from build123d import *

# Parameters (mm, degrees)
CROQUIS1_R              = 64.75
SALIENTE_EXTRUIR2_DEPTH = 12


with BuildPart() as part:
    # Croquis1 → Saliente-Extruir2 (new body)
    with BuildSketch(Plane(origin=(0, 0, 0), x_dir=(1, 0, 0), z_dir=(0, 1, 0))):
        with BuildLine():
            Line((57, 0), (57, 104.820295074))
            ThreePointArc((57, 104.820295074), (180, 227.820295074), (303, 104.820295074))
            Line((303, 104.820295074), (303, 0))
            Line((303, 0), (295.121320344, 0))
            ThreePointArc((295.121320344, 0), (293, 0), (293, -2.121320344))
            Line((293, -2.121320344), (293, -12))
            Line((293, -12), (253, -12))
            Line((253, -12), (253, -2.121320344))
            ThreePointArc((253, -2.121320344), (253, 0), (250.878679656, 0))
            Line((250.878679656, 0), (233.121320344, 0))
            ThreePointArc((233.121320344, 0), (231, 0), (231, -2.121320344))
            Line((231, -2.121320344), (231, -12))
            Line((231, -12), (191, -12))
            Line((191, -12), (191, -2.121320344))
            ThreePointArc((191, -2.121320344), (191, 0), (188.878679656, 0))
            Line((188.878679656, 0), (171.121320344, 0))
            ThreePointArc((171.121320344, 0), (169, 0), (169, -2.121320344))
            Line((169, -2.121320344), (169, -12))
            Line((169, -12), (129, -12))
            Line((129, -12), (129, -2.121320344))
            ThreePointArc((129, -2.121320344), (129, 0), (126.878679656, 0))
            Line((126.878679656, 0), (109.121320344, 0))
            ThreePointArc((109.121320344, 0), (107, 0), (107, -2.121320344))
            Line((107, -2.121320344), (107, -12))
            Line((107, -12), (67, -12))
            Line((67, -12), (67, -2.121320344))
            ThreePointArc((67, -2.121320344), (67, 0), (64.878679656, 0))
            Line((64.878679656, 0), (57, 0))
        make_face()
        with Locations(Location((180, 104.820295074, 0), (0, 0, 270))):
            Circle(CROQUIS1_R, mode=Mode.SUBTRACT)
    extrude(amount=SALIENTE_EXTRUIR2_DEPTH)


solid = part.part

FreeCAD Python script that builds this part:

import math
import FreeCAD as App
import Part
import Sketcher
from FreeCAD import Vector

doc = App.newDocument("Part")
body = doc.addObject("PartDesign::Body", "Body")

sketch1 = body.newObject("Sketcher::SketchObject", "Sketch")
sketch1.AttachmentSupport = (doc.getObject("XZ_Plane"), [""])
sketch1.MapMode = "FlatFace"
sketch1.addGeometry(Part.LineSegment(Vector(57, -104.820295, 0), Vector(57, 0, 0)), False)
sketch1.addGeometry(Part.LineSegment(Vector(57, 0, 0), Vector(64.87868, 0, 0)), False)
sketch1.addGeometry(Part.ArcOfCircle(Part.Circle(Vector(65.93934, 1.06066, 0), Vector(0, 0, 1), 1.5), math.radians(-135), math.radians(45)), False)
sketch1.addGeometry(Part.LineSegment(Vector(67, 2.12132, 0), Vector(67, 12, 0)), False)
sketch1.addGeometry(Part.LineSegment(Vector(67, 12, 0), Vector(107, 12, 0)), False)
sketch1.addGeometry(Part.LineSegment(Vector(107, 12, 0), Vector(107, 2.12132, 0)), False)
sketch1.addGeometry(Part.ArcOfCircle(Part.Circle(Vector(108.06066, 1.06066, 0), Vector(0, 0, 1), 1.5), math.radians(135), math.radians(315)), False)
sketch1.addGeometry(Part.LineSegment(Vector(109.12132, 0, 0), Vector(126.87868, 0, 0)), False)
sketch1.addGeometry(Part.ArcOfCircle(Part.Circle(Vector(127.93934, 1.06066, 0), Vector(0, 0, 1), 1.5), math.radians(-135), math.radians(45)), False)
sketch1.addGeometry(Part.LineSegment(Vector(129, 2.12132, 0), Vector(129, 12, 0)), False)
sketch1.addGeometry(Part.LineSegment(Vector(129, 12, 0), Vector(169, 12, 0)), False)
sketch1.addGeometry(Part.LineSegment(Vector(169, 12, 0), Vector(169, 2.12132, 0)), False)
sketch1.addGeometry(Part.ArcOfCircle(Part.Circle(Vector(170.06066, 1.06066, 0), Vector(0, 0, 1), 1.5), math.radians(135), math.radians(315)), False)
sketch1.addGeometry(Part.LineSegment(Vector(171.12132, 0, 0), Vector(188.87868, 0, 0)), False)
sketch1.addGeometry(Part.ArcOfCircle(Part.Circle(Vector(189.93934, 1.06066, 0), Vector(0, 0, 1), 1.5), math.radians(-135), math.radians(45)), False)
sketch1.addGeometry(Part.LineSegment(Vector(191, 2.12132, 0), Vector(191, 12, 0)), False)
sketch1.addGeometry(Part.LineSegment(Vector(191, 12, 0), Vector(231, 12, 0)), False)
sketch1.addGeometry(Part.LineSegment(Vector(231, 12, 0), Vector(231, 2.12132, 0)), False)
sketch1.addGeometry(Part.ArcOfCircle(Part.Circle(Vector(232.06066, 1.06066, 0), Vector(0, 0, 1), 1.5), math.radians(135), math.radians(315)), False)
sketch1.addGeometry(Part.LineSegment(Vector(233.12132, 0, 0), Vector(250.87868, 0, 0)), False)
sketch1.addGeometry(Part.ArcOfCircle(Part.Circle(Vector(251.93934, 1.06066, 0), Vector(0, 0, 1), 1.5), math.radians(-135), math.radians(45)), False)
sketch1.addGeometry(Part.LineSegment(Vector(253, 2.12132, 0), Vector(253, 12, 0)), False)
sketch1.addGeometry(Part.LineSegment(Vector(253, 12, 0), Vector(293, 12, 0)), False)
sketch1.addGeometry(Part.LineSegment(Vector(293, 12, 0), Vector(293, 2.12132, 0)), False)
sketch1.addGeometry(Part.ArcOfCircle(Part.Circle(Vector(294.06066, 1.06066, 0), Vector(0, 0, 1), 1.5), math.radians(135), math.radians(315)), False)
sketch1.addGeometry(Part.LineSegment(Vector(295.12132, 0, 0), Vector(303, 0, 0)), False)
sketch1.addGeometry(Part.LineSegment(Vector(303, 0, 0), Vector(303, -104.820295, 0)), False)
sketch1.addGeometry(Part.ArcOfCircle(Part.Circle(Vector(180, -104.820295, 0), Vector(0, 0, 1), 123), math.radians(180), math.radians(360)), False)
sketch1.addGeometry(Part.Circle(Vector(180, -104.820295, 0), Vector(0, 0, 1), 64.75), False)
sketch1.addConstraint(Sketcher.Constraint("Coincident", 0, 2, 1, 1))
sketch1.addConstraint(Sketcher.Constraint("Coincident", 1, 2, 2, 1))
sketch1.addConstraint(Sketcher.Constraint("Coincident", 2, 2, 3, 1))
sketch1.addConstraint(Sketcher.Constraint("Coincident", 3, 2, 4, 1))
sketch1.addConstraint(Sketcher.Constraint("Coincident", 4, 2, 5, 1))
sketch1.addConstraint(Sketcher.Constraint("Coincident", 5, 2, 6, 1))
sketch1.addConstraint(Sketcher.Constraint("Coincident", 6, 2, 7, 1))
sketch1.addConstraint(Sketcher.Constraint("Coincident", 7, 2, 8, 1))
sketch1.addConstraint(Sketcher.Constraint("Coincident", 8, 2, 9, 1))
sketch1.addConstraint(Sketcher.Constraint("Coincident", 9, 2, 10, 1))
sketch1.addConstraint(Sketcher.Constraint("Coincident", 10, 2, 11, 1))
sketch1.addConstraint(Sketcher.Constraint("Coincident", 11, 2, 12, 1))
sketch1.addConstraint(Sketcher.Constraint("Coincident", 12, 2, 13, 1))
sketch1.addConstraint(Sketcher.Constraint("Coincident", 13, 2, 14, 1))
sketch1.addConstraint(Sketcher.Constraint("Coincident", 14, 2, 15, 1))
sketch1.addConstraint(Sketcher.Constraint("Coincident", 15, 2, 16, 1))
sketch1.addConstraint(Sketcher.Constraint("Coincident", 16, 2, 17, 1))
sketch1.addConstraint(Sketcher.Constraint("Coincident", 17, 2, 18, 1))
sketch1.addConstraint(Sketcher.Constraint("Coincident", 18, 2, 19, 1))
sketch1.addConstraint(Sketcher.Constraint("Coincident", 19, 2, 20, 1))
sketch1.addConstraint(Sketcher.Constraint("Coincident", 20, 2, 21, 1))
sketch1.addConstraint(Sketcher.Constraint("Coincident", 21, 2, 22, 1))
sketch1.addConstraint(Sketcher.Constraint("Coincident", 22, 2, 23, 1))
sketch1.addConstraint(Sketcher.Constraint("Coincident", 23, 2, 24, 1))
sketch1.addConstraint(Sketcher.Constraint("Coincident", 24, 2, 25, 1))
sketch1.addConstraint(Sketcher.Constraint("Coincident", 25, 2, 26, 1))
sketch1.addConstraint(Sketcher.Constraint("Tangent", 26, 2, 27, 2))
sketch1.addConstraint(Sketcher.Constraint("Tangent", 27, 1, 0, 1))
sketch1.addConstraint(Sketcher.Constraint("Vertical", 0))
sketch1.addConstraint(Sketcher.Constraint("Horizontal", 1))
sketch1.addConstraint(Sketcher.Constraint("Vertical", 3))
sketch1.addConstraint(Sketcher.Constraint("Horizontal", 4))
sketch1.addConstraint(Sketcher.Constraint("Vertical", 5))
sketch1.addConstraint(Sketcher.Constraint("Horizontal", 7))
sketch1.addConstraint(Sketcher.Constraint("Vertical", 9))
sketch1.addConstraint(Sketcher.Constraint("Horizontal", 10))
sketch1.addConstraint(Sketcher.Constraint("Vertical", 11))
sketch1.addConstraint(Sketcher.Constraint("Horizontal", 13))
sketch1.addConstraint(Sketcher.Constraint("Vertical", 15))
sketch1.addConstraint(Sketcher.Constraint("Horizontal", 16))
sketch1.addConstraint(Sketcher.Constraint("Vertical", 17))
sketch1.addConstraint(Sketcher.Constraint("Horizontal", 19))
sketch1.addConstraint(Sketcher.Constraint("Vertical", 21))
sketch1.addConstraint(Sketcher.Constraint("Horizontal", 22))
sketch1.addConstraint(Sketcher.Constraint("Vertical", 23))
sketch1.addConstraint(Sketcher.Constraint("Horizontal", 25))
sketch1.addConstraint(Sketcher.Constraint("Vertical", 26))
sketch1.addConstraint(Sketcher.Constraint("Coincident", 28, 3, 27, 3))
sketch1.addConstraint(Sketcher.Constraint("Equal", 2, 6))
sketch1.addConstraint(Sketcher.Constraint("Equal", 6, 8))
sketch1.addConstraint(Sketcher.Constraint("Equal", 8, 12))
sketch1.addConstraint(Sketcher.Constraint("Equal", 12, 14))
sketch1.addConstraint(Sketcher.Constraint("Equal", 14, 18))
sketch1.addConstraint(Sketcher.Constraint("Equal", 18, 20))
sketch1.addConstraint(Sketcher.Constraint("Equal", 20, 24))
sketch1.addConstraint(Sketcher.Constraint("PointOnObject", 0, 2, -1))
sketch1.addConstraint(Sketcher.Constraint("PointOnObject", 6, 2, -1))
sketch1.addConstraint(Sketcher.Constraint("PointOnObject", 12, 2, -1))
sketch1.addConstraint(Sketcher.Constraint("PointOnObject", 18, 2, -1))
sketch1.addConstraint(Sketcher.Constraint("PointOnObject", 24, 2, -1))
sketch1.addConstraint(Sketcher.Constraint("Horizontal", 2, 3, 6, 3))
sketch1.addConstraint(Sketcher.Constraint("Horizontal", 6, 3, 8, 3))
sketch1.addConstraint(Sketcher.Constraint("Horizontal", 8, 3, 12, 3))
sketch1.addConstraint(Sketcher.Constraint("Horizontal", 12, 3, 14, 3))
sketch1.addConstraint(Sketcher.Constraint("Horizontal", 14, 3, 18, 3))
sketch1.addConstraint(Sketcher.Constraint("Horizontal", 18, 3, 20, 3))
sketch1.addConstraint(Sketcher.Constraint("Horizontal", 20, 3, 24, 3))
sketch1.addConstraint(Sketcher.Constraint("Horizontal", 2, 2, 5, 2))
sketch1.addConstraint(Sketcher.Constraint("Horizontal", 5, 2, 8, 2))
sketch1.addConstraint(Sketcher.Constraint("Horizontal", 4, 2, 9, 2))
sketch1.addConstraint(Sketcher.Constraint("Horizontal", 8, 2, 11, 2))
sketch1.addConstraint(Sketcher.Constraint("Horizontal", 11, 2, 14, 2))
sketch1.addConstraint(Sketcher.Constraint("Horizontal", 10, 2, 15, 2))
sketch1.addConstraint(Sketcher.Constraint("Horizontal", 14, 2, 17, 2))
sketch1.addConstraint(Sketcher.Constraint("Horizontal", 17, 2, 20, 2))
sketch1.addConstraint(Sketcher.Constraint("Horizontal", 16, 2, 21, 2))
sketch1.addConstraint(Sketcher.Constraint("Horizontal", 20, 2, 23, 2))
sketch1.addConstraint(Sketcher.Constraint("Equal", 4, 10))
sketch1.addConstraint(Sketcher.Constraint("Equal", 7, 13))
sketch1.addConstraint(Sketcher.Constraint("Equal", 10, 16))
sketch1.addConstraint(Sketcher.Constraint("Equal", 13, 19))
sketch1.addConstraint(Sketcher.Constraint("Equal", 16, 22))
sketch1.addConstraint(Sketcher.Constraint("Equal", 1, 25))
sketch1.addConstraint(Sketcher.Constraint("Radius", 27, 123.0))
sketch1.addConstraint(Sketcher.Constraint("Diameter", 28, 129.5))
sketch1.addConstraint(Sketcher.Constraint("Radius", 2, 1.5))
sketch1.addConstraint(Sketcher.Constraint("DistanceX", 4, 1, 4, 2, 40.0))
sketch1.addConstraint(Sketcher.Constraint("DistanceX", -1, 1, 27, 3, 180.0))
sketch1.addConstraint(Sketcher.Constraint("DistanceX", -1, 1, 2, 2, 67.0))
sketch1.addConstraint(Sketcher.Constraint("DistanceY", -1, 1, 3, 2, 12.0))
sketch1.addConstraint(Sketcher.Constraint("DistanceX", 1, 1, 1, 2, 7.87868))
sketch1.addConstraint(Sketcher.Constraint("DistanceY", 0, 1, 0, 2, 104.820295))
sketch1.addConstraint(Sketcher.Constraint("DistanceX", -1, 1, 2, 3, 65.93934))
pad1 = body.newObject("PartDesign::Pad", "Pad")
pad1.Profile = sketch1
pad1.Length = 12
pad1.Reversed = True

doc.recompute()
